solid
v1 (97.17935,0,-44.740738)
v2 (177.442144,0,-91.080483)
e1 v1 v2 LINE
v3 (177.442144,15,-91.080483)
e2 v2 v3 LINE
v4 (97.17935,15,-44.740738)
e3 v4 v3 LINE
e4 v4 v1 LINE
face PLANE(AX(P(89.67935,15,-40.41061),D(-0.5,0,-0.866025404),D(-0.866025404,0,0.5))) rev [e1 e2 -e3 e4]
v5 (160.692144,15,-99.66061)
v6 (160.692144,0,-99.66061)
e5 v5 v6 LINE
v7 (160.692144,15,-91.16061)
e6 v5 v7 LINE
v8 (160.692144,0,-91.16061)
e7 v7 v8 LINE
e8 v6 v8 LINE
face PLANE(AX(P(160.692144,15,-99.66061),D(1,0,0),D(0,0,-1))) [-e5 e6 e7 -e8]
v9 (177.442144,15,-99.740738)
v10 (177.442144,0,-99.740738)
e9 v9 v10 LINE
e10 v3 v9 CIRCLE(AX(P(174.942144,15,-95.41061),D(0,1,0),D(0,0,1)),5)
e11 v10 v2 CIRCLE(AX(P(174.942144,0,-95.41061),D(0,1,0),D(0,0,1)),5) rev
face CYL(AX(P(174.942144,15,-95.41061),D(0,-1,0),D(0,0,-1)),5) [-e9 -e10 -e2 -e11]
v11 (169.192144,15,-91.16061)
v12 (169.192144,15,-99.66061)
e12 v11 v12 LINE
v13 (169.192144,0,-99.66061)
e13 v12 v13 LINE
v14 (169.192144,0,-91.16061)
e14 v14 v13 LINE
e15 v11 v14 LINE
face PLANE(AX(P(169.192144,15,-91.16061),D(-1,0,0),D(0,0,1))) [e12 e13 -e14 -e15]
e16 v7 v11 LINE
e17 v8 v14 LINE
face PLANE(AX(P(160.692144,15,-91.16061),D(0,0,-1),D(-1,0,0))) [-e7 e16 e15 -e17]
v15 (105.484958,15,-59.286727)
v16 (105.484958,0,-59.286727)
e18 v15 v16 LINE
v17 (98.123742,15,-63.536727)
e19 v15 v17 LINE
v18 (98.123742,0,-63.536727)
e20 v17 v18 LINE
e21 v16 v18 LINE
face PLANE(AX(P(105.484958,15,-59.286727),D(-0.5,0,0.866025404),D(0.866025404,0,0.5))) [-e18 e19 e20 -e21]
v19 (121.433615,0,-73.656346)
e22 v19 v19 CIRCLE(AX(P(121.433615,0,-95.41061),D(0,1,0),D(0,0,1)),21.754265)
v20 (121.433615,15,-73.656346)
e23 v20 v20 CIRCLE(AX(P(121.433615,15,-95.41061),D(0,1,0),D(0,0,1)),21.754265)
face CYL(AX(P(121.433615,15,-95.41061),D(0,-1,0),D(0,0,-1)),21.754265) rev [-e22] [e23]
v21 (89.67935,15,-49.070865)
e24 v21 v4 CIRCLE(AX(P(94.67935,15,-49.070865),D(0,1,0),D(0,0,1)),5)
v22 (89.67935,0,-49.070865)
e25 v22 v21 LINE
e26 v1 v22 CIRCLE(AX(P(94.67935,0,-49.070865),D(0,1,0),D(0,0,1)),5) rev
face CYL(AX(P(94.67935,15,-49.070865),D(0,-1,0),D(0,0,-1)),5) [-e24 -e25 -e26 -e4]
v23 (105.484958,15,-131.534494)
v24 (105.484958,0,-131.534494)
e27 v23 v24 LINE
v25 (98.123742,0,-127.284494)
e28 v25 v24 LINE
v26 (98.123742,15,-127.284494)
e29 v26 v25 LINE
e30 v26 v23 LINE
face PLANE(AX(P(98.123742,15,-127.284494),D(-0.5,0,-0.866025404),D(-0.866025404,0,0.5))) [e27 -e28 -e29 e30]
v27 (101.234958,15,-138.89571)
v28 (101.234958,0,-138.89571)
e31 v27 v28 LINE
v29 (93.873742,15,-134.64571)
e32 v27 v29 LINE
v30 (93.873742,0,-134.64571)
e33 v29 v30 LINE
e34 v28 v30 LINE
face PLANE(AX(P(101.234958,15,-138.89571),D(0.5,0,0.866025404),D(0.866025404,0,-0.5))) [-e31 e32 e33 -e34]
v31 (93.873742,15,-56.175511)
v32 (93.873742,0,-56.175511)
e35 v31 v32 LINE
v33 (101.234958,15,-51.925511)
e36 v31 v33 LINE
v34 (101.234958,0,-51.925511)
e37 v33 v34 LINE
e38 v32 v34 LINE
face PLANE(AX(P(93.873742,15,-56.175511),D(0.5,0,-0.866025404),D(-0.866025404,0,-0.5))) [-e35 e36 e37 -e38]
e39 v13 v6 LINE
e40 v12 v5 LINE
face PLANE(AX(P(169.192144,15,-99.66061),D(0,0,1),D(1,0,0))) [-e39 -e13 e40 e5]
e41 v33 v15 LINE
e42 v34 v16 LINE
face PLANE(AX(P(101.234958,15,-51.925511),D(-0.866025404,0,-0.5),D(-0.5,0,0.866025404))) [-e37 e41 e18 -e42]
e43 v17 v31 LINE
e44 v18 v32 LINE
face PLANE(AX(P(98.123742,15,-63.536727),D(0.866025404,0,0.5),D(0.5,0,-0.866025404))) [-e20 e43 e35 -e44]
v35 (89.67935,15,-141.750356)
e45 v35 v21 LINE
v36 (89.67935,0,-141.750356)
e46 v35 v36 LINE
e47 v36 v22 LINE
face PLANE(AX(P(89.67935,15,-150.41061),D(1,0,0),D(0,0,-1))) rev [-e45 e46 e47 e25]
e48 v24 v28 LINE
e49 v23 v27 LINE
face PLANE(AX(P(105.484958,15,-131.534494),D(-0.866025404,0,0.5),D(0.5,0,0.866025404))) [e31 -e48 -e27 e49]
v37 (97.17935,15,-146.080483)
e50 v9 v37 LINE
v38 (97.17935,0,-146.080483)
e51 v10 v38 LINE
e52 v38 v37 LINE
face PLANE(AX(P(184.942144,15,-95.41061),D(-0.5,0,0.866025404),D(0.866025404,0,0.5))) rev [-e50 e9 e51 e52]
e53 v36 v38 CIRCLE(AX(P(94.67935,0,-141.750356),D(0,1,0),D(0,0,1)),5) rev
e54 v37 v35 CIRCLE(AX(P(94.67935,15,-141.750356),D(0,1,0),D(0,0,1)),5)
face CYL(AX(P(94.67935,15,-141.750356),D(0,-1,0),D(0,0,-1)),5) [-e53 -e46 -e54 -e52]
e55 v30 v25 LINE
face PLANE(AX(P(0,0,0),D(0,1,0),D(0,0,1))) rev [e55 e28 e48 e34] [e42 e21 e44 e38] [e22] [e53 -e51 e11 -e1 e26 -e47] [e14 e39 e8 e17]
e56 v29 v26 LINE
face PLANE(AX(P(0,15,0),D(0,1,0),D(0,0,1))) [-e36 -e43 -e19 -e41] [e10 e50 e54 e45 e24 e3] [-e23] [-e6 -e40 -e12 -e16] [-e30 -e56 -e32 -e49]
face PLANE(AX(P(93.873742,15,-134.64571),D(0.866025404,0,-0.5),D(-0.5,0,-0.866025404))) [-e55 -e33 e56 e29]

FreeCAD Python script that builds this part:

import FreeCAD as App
import Part
import Sketcher
Q = App.Units.Quantity


def edges_at(feature, points):
    """Names of the edges that pass closest to the given points."""
    edges = feature.Shape.Edges
    near = lambda p: min(range(len(edges)), key=lambda i: edges[i].distToShape(Part.Vertex(*p))[0])
    return sorted({f"Edge{near(p) + 1}" for p in points})

doc = App.newDocument("Part")
params = doc.addObject("Spreadsheet::Sheet", "Params")
for row, (alias, value) in enumerate([
    ("sketch1_height", "110 mm"),
    ("sketch1_width", "8.5 mm"),
    ("sketch1_length", "8.5 mm"),
    ("pad1_length", "15 mm"),
    ("fillet_radius", "5 mm"),
], start=1):
    params.set(f"A{row}", alias)
    params.set(f"B{row}", "=" + value)
    params.setAlias(f"B{row}", alias)

body = doc.addObject("PartDesign::Body", "Body")

# Sketch on XZ plane
sketch1 = doc.addObject("Sketcher::SketchObject", "Sketch")
body.addObject(sketch1)
sketch1.AttachmentSupport = (doc.XZ_Plane, [""])
sketch1.MapMode = "FlatFace"
sketch1.addGeometry([
    Part.LineSegment(App.Vector(185, -95, 0), App.Vector(90, -150, 0)),  # 0
    Part.LineSegment(App.Vector(90, -150, 0), App.Vector(90, -40, 0)),  # 1
    Part.LineSegment(App.Vector(90, -40, 0), App.Vector(185, -95, 0)),  # 2
    Part.LineSegment(App.Vector(98, -64, 0), App.Vector(105, -59, 0)),  # 3
    Part.LineSegment(App.Vector(105, -59, 0), App.Vector(101, -52, 0)),  # 4
    Part.LineSegment(App.Vector(101, -52, 0), App.Vector(94, -56, 0)),  # 5
    Part.LineSegment(App.Vector(94, -56, 0), App.Vector(98, -64, 0)),  # 6
    Part.Circle(App.Vector(121, -95, 0), App.Vector(0, 0, 1), 22),  # 7
    Part.LineSegment(App.Vector(101, -139, 0), App.Vector(105, -132, 0)),  # 8
    Part.LineSegment(App.Vector(105, -132, 0), App.Vector(98, -127, 0)),  # 9
    Part.LineSegment(App.Vector(98, -127, 0), App.Vector(94, -135, 0)),  # 10
    Part.LineSegment(App.Vector(94, -135, 0), App.Vector(101, -139, 0)),  # 11
    Part.LineSegment(App.Vector(169, -91, 0), App.Vector(161, -91, 0)),  # 12
    Part.LineSegment(App.Vector(161, -91, 0), App.Vector(161, -100, 0)),  # 13
    Part.LineSegment(App.Vector(161, -100, 0), App.Vector(169, -100, 0)),  # 14
    Part.LineSegment(App.Vector(169, -100, 0), App.Vector(169, -91, 0)),  # 15
], False)
sketch1.addConstraint([
    Sketcher.Constraint("Coincident", 0, 2, 1, 1),
    Sketcher.Constraint("Coincident", 1, 2, 2, 1),
    Sketcher.Constraint("Coincident", 2, 2, 0, 1),
    Sketcher.Constraint("Coincident", 3, 2, 4, 1),
    Sketcher.Constraint("Coincident", 4, 2, 5, 1),
    Sketcher.Constraint("Coincident", 5, 2, 6, 1),
    Sketcher.Constraint("Coincident", 6, 2, 3, 1),
    Sketcher.Constraint("Coincident", 8, 2, 9, 1),
    Sketcher.Constraint("Coincident", 9, 2, 10, 1),
    Sketcher.Constraint("Coincident", 10, 2, 11, 1),
    Sketcher.Constraint("Coincident", 11, 2, 8, 1),
    Sketcher.Constraint("Coincident", 12, 2, 13, 1),
    Sketcher.Constraint("Coincident", 13, 2, 14, 1),
    Sketcher.Constraint("Coincident", 14, 2, 15, 1),
    Sketcher.Constraint("Coincident", 15, 2, 12, 1),
    Sketcher.Constraint("Vertical", 1),
    Sketcher.Constraint("Horizontal", 12),
    Sketcher.Constraint("Vertical", 13),
    Sketcher.Constraint("Horizontal", 14),
    Sketcher.Constraint("Vertical", 15),
    Sketcher.Constraint("Parallel", 0, 3),
    Sketcher.Constraint("Perpendicular", 3, 4),
    Sketcher.Constraint("Perpendicular", 4, 5),
    Sketcher.Constraint("Perpendicular", 5, 6),
    Sketcher.Constraint("Perpendicular", 2, 8),
    Sketcher.Constraint("Perpendicular", 8, 9),
    Sketcher.Constraint("Perpendicular", 9, 10),
    Sketcher.Constraint("Perpendicular", 10, 11),
    Sketcher.Constraint("Horizontal", 7, 3, 2, 2),
    Sketcher.Constraint("Vertical", 3, 2, 8, 2),
    Sketcher.Constraint("Vertical", 6, 2, 9, 2),
    Sketcher.Constraint("Vertical", 5, 2, 10, 2),
    Sketcher.Constraint("Equal", 14, 13),
    Sketcher.Constraint("Equal", 0, 2),
    Sketcher.Constraint("Equal", 3, 4),
    Sketcher.Constraint("DistanceY", 1, 1, 1, 2, 110.0),
    Sketcher.Constraint("Angle", 0, Q("-150 deg")),
    Sketcher.Constraint("DistanceX", 12, 2, 12, 1, 8.5),
    Sketcher.Constraint("Distance", 3, 8.5),
    Sketcher.Constraint("Diameter", 7, 43.50853),
    Sketcher.Constraint("DistanceX", 12, 2, 2, 2, 24.25),
    Sketcher.Constraint("DistanceY", 2, 2, 12, 2, 4.25),
    Sketcher.Constraint("DistanceY", 4, 2, 1, 2, 11.5149),
    Sketcher.Constraint("DistanceY", 0, 2, 10, 2, 15.7649),
    Sketcher.Constraint("DistanceY", 7, 3, -1, 1, 95.41061),
    Sketcher.Constraint("DistanceX", -1, 1, 0, 2, 89.67935),
    Sketcher.Constraint("DistanceX", -1, 1, 5, 2, 93.873742),
    Sketcher.Constraint("DistanceX", 7, 3, 2, 2, 63.50853),
])
sketch1.setExpression("Constraints[35]", "Params.sketch1_height")
sketch1.setExpression("Constraints[37]", "Params.sketch1_width")
sketch1.setExpression("Constraints[38]", "Params.sketch1_length")
pad1 = doc.addObject("PartDesign::Pad", "Pad")
body.addObject(pad1)
pad1.Profile = sketch1
pad1.setExpression("Length", "Params.pad1_length")
pad1.Reversed = True
doc.recompute()

fillet = doc.addObject("PartDesign::Fillet", "Fillet")
body.addObject(fillet)
fillet.Base = (pad1, edges_at(pad1, [(89.679, 7.5, -40.411), (89.679, 7.5, -150.411), (184.942, 7.5, -95.411)]))
fillet.setExpression("Radius", "Params.fillet_radius")

doc.recompute()
